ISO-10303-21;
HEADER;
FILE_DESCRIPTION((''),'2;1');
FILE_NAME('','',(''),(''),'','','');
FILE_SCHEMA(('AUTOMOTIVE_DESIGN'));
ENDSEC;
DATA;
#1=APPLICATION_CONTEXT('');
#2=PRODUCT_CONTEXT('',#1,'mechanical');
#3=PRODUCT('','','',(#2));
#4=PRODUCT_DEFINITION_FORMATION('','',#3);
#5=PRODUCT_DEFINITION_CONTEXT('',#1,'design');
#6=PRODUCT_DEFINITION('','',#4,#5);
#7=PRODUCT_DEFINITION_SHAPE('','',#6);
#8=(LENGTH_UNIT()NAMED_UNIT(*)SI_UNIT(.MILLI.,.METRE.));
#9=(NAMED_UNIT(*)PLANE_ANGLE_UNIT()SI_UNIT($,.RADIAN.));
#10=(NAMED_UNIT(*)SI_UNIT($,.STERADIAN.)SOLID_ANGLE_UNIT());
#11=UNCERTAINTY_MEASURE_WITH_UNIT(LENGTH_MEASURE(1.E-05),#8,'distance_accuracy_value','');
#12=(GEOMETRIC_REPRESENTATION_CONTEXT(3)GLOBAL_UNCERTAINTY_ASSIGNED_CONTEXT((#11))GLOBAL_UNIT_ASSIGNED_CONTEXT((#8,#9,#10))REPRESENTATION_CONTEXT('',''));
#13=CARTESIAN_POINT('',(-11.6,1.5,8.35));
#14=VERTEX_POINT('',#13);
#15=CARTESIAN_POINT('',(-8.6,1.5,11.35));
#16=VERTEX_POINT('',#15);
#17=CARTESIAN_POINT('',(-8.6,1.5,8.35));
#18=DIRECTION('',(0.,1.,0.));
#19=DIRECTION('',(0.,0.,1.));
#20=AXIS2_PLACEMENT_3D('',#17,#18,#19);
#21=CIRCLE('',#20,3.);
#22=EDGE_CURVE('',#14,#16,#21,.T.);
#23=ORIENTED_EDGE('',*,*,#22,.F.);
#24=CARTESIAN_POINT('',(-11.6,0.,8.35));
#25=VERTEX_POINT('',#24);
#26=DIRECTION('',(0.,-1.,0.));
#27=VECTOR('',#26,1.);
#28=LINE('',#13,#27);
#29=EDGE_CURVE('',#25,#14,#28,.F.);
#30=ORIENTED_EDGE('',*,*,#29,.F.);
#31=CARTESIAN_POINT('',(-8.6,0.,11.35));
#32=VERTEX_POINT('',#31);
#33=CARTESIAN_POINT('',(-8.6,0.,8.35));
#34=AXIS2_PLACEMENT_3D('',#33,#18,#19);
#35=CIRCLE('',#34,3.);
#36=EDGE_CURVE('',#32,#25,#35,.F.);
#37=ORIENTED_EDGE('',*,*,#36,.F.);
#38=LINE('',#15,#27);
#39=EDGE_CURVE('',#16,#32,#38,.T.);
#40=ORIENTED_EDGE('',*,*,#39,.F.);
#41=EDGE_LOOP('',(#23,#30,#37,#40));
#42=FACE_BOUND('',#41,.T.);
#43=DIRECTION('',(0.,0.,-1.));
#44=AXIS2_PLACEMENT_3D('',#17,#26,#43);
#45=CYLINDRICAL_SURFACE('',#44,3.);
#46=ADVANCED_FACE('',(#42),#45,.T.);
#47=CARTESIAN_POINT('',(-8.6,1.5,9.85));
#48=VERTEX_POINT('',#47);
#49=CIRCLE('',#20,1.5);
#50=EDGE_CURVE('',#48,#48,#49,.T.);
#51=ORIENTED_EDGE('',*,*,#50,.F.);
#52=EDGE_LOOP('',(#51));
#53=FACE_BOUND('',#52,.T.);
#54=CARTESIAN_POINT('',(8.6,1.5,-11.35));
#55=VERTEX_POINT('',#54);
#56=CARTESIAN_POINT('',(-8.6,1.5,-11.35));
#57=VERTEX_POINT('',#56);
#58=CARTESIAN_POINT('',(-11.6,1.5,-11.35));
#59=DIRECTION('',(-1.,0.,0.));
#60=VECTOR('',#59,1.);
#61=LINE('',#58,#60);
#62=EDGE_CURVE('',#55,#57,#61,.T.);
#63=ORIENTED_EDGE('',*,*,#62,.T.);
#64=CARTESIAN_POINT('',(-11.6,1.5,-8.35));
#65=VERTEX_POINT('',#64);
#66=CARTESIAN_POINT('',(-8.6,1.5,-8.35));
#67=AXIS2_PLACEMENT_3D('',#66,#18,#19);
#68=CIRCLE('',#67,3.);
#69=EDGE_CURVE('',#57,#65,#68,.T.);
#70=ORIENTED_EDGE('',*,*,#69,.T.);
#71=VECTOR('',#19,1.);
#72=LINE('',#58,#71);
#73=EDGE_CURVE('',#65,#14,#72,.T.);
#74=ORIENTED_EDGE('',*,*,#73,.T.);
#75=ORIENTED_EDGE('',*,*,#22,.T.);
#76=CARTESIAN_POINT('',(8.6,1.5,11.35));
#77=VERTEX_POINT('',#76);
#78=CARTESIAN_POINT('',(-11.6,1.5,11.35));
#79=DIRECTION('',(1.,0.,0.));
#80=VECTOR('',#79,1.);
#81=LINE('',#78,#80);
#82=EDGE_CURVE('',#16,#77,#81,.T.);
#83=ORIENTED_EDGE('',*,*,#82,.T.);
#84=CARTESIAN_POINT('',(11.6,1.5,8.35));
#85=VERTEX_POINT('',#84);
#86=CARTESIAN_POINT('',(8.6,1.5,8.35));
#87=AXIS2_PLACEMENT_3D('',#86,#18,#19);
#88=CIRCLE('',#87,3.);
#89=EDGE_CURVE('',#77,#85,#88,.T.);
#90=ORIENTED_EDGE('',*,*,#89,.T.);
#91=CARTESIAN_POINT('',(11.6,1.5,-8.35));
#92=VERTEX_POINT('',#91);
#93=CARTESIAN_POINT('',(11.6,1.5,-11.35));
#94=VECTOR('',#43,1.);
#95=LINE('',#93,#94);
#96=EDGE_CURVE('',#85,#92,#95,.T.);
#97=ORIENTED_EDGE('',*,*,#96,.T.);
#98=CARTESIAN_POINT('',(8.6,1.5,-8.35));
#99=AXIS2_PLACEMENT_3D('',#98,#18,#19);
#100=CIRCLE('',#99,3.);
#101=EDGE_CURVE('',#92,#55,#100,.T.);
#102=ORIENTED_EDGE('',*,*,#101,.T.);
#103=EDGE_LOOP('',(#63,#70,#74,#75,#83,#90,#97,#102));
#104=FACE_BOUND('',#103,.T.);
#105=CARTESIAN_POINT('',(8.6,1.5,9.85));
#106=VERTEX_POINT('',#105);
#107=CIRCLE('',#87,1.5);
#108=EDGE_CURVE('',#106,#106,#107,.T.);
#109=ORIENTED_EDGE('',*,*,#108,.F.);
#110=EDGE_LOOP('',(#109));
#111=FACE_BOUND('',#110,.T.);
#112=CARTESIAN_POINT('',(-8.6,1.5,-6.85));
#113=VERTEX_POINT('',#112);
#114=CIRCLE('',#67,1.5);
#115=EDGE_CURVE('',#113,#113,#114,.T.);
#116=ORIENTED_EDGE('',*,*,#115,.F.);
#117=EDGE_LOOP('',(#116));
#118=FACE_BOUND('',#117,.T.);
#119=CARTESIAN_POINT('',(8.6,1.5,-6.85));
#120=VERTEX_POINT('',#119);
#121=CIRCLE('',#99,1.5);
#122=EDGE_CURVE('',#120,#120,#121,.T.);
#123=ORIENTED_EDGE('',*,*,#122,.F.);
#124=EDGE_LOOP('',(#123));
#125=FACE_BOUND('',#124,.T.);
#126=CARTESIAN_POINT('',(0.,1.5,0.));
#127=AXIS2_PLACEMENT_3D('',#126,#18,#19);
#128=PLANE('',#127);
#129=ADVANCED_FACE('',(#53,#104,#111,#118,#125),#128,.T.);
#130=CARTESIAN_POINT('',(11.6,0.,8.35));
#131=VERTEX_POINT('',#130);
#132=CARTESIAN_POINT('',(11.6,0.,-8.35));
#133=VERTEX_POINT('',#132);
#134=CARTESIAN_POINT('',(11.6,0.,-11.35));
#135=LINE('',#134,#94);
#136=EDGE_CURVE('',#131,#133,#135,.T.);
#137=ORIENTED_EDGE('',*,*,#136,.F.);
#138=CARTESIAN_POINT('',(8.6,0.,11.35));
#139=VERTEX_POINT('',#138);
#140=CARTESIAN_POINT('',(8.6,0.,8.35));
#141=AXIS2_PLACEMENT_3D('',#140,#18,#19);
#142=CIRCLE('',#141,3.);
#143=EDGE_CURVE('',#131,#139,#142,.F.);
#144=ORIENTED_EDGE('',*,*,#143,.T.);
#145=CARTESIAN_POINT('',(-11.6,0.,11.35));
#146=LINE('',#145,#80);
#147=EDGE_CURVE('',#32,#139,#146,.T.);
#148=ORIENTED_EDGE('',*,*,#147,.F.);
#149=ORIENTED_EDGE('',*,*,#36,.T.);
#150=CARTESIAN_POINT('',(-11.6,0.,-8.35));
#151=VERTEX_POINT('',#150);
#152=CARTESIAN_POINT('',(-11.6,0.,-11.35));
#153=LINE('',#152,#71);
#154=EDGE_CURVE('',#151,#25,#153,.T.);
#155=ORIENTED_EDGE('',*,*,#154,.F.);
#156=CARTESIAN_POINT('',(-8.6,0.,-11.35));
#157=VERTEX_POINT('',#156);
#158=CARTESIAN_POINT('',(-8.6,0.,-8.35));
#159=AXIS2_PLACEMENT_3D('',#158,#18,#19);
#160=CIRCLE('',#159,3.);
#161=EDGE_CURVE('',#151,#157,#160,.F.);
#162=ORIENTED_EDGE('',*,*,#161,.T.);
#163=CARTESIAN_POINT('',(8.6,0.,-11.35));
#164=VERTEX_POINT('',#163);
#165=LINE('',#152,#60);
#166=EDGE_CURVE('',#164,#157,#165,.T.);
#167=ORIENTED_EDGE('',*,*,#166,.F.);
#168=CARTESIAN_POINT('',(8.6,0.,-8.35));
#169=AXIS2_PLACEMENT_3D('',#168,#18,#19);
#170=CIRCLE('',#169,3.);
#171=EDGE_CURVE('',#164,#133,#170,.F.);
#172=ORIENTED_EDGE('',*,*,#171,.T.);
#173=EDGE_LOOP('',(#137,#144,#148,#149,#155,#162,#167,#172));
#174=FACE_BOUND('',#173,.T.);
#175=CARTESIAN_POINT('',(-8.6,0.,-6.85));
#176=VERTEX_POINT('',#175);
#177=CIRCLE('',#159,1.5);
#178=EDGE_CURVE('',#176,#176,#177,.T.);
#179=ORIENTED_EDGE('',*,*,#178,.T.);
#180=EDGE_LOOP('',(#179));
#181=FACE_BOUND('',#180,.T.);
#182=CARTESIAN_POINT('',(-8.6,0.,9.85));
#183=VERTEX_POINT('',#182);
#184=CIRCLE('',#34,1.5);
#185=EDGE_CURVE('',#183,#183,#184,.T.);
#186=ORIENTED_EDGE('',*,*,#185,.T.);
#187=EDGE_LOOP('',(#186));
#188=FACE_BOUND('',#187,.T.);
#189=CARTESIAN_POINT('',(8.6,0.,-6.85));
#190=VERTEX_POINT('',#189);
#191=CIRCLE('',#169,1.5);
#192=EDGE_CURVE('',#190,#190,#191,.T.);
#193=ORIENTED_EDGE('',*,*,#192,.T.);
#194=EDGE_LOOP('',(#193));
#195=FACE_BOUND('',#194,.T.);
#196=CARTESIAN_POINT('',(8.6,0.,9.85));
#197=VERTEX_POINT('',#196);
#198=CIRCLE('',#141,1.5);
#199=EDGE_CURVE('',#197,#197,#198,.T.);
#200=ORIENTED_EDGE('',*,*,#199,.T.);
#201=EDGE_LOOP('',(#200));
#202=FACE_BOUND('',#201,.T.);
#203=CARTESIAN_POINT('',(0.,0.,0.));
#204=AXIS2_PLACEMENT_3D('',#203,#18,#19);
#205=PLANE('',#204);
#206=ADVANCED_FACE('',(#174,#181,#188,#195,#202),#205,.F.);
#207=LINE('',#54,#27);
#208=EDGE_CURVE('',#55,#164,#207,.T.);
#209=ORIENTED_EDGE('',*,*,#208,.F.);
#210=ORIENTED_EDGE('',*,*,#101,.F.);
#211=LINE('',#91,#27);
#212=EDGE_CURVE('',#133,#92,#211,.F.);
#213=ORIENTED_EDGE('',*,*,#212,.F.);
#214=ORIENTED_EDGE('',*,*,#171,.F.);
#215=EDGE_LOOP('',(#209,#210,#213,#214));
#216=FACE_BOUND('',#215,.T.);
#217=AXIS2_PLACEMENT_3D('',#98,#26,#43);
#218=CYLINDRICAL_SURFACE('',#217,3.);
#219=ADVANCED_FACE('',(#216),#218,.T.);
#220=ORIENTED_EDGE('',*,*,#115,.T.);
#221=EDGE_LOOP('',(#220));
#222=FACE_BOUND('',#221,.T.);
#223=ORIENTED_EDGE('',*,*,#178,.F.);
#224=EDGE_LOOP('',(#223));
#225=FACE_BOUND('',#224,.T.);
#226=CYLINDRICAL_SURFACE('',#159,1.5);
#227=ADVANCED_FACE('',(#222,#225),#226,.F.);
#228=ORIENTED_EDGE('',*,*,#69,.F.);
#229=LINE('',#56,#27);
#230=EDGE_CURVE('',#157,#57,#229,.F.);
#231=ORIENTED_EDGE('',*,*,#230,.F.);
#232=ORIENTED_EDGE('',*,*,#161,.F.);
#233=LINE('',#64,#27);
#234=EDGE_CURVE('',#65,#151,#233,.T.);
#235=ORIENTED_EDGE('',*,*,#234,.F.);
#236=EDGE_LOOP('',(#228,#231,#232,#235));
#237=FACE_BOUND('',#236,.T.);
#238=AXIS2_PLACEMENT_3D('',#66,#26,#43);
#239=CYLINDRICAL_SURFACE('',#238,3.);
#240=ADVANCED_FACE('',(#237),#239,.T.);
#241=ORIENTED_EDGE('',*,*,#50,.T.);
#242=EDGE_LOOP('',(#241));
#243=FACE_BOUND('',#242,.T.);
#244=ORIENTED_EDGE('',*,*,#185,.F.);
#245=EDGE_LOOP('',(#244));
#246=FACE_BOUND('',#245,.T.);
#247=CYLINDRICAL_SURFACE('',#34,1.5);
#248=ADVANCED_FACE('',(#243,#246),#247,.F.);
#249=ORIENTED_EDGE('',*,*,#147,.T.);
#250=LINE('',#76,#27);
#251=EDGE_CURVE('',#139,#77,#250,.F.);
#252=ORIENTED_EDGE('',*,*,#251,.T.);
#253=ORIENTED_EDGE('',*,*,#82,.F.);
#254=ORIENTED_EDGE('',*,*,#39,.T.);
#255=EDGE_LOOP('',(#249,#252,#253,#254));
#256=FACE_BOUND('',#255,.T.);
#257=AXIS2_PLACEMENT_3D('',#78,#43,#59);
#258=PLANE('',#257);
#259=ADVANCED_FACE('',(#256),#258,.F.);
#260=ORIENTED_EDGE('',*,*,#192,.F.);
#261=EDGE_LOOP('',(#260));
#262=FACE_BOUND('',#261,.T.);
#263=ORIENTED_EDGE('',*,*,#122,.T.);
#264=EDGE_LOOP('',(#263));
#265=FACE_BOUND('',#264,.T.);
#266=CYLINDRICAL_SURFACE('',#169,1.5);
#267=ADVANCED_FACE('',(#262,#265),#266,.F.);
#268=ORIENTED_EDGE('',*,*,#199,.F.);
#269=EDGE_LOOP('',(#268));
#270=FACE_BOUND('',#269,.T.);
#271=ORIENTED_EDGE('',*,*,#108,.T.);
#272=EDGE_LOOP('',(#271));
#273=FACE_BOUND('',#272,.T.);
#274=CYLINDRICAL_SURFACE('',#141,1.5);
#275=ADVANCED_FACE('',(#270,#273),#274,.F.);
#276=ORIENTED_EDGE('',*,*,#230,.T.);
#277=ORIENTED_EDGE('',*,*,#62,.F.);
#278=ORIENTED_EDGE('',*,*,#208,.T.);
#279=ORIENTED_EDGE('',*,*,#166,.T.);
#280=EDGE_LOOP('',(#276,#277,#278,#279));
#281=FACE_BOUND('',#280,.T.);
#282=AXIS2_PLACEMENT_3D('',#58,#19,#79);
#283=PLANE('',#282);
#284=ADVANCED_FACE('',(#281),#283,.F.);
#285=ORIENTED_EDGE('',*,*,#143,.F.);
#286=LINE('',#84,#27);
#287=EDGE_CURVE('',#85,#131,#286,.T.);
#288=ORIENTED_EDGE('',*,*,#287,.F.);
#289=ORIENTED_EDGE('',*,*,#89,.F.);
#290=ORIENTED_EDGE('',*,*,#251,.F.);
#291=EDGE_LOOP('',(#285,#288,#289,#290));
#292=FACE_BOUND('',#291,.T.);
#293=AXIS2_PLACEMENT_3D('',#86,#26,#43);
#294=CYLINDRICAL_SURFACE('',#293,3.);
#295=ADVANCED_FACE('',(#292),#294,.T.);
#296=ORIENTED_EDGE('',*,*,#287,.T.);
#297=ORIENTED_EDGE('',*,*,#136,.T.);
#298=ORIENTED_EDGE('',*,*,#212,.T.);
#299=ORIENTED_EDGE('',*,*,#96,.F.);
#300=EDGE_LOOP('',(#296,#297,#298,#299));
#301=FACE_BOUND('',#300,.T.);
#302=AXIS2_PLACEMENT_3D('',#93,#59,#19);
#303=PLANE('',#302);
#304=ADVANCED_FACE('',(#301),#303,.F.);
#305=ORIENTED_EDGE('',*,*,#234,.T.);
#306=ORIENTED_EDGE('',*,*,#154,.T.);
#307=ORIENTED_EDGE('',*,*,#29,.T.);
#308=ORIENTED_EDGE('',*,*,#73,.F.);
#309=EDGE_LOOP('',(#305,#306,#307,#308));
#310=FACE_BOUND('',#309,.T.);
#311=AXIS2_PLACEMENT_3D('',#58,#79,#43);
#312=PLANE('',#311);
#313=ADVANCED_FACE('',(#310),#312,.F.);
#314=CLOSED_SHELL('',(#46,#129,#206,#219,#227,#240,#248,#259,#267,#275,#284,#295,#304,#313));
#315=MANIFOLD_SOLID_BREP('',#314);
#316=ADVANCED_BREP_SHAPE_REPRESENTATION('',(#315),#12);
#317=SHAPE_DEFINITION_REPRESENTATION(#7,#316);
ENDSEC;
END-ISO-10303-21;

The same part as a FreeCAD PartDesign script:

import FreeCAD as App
import Part
import Sketcher

V = App.Vector


def edges_at(feature, points):
    """Names of the edges that pass closest to the given points."""
    edges = feature.Shape.Edges
    near = lambda p: min(range(len(edges)), key=lambda i: edges[i].distToShape(Part.Vertex(*p))[0])
    return sorted({f"Edge{near(p) + 1}" for p in points})


def add_polygon(sketch, points):
    """Adds a closed chain of lines whose ends are joined by coincident constraints."""
    first, n = sketch.GeometryCount, len(points)
    for a, b in zip(points, points[1:] + points[:1]):
        sketch.addGeometry(Part.LineSegment(App.Vector(*a, 0), App.Vector(*b, 0)), False)
    for i in range(n):
        sketch.addConstraint(Sketcher.Constraint("Coincident", first + i, 2, first + (i + 1) % n, 1))

doc = App.newDocument("Part")
body = doc.addObject("PartDesign::Body", "Body")

sketch1 = body.newObject("Sketcher::SketchObject", "Sketch")
sketch1.AttachmentSupport = (doc.getObject("XZ_Plane"), [""])
sketch1.MapMode = "FlatFace"
add_polygon(sketch1, [(-12, -11), (-12, 11), (12, 11), (12, -11)])
sketch1.addConstraint([
    Sketcher.Constraint("Vertical", 0),
    Sketcher.Constraint("Horizontal", 1),
    Sketcher.Constraint("Vertical", 2),
    Sketcher.Constraint("Horizontal", 3),
    Sketcher.Constraint("Symmetric", 0, 2, 2, 2, -1, 1),
    Sketcher.Constraint("DistanceX", 1, 1, 1, 2, 23.2),
    Sketcher.Constraint("DistanceY", 0, 1, 0, 2, 22.7),
])
pad1 = body.newObject("PartDesign::Pad", "Pad")
pad1.Profile = sketch1
pad1.Length = 1.5
pad1.Reversed = True
doc.recompute()

fillet = body.newObject("PartDesign::Fillet", "Fillet")
fillet.Base = (pad1, edges_at(pad1, [
    (11.6, 0.75, 11.35),
    (-11.6, 0.75, 11.35),
    (-11.6, 0.75, -11.35),
    (11.6, 0.75, -11.35),
]))
fillet.Radius = 3

sketch2 = body.newObject("Sketcher::SketchObject", "Sketch001")
sketch2.AttachmentSupport = (doc.getObject("XZ_Plane"), [""])
sketch2.MapMode = "FlatFace"
sketch2.AttachmentOffset = App.Placement(V(0, 0, -1.5), App.Rotation())
sketch2.addGeometry([
    Part.Circle(V(-8.6, -8.3, 0), V(0, 0, 1), 1.5),
    Part.Circle(V(8.6, -8.3, 0), V(0, 0, 1), 1.5),
    Part.Circle(V(8.6, 8.3, 0), V(0, 0, 1), 1.5),
    Part.Circle(V(-8.6, 8.3, 0), V(0, 0, 1), 1.5),
], False)
sketch2.addConstraint([
    Sketcher.Constraint("Equal", 0, 1),
    Sketcher.Constraint("Equal", 1, 2),
    Sketcher.Constraint("Equal", 2, 3),
    Sketcher.Constraint("Symmetric", 0, 3, 2, 3, -1, 1),
    Sketcher.Constraint("Symmetric", 1, 3, 3, 3, -1, 1),
    Sketcher.Constraint("Symmetric", 0, 3, 1, 3, -2),
    Sketcher.Constraint("Diameter", 0, 3.0),
    Sketcher.Constraint("DistanceX", 0, 3, -1, 1, 8.6),
    Sketcher.Constraint("DistanceY", 1, 3, 2, 3, 16.7),
])
pocket1 = body.newObject("PartDesign::Pocket", "Pocket")
pocket1.Profile = sketch2
pocket1.Type = "ThroughAll"
pocket1.Reversed = True

doc.recompute()
